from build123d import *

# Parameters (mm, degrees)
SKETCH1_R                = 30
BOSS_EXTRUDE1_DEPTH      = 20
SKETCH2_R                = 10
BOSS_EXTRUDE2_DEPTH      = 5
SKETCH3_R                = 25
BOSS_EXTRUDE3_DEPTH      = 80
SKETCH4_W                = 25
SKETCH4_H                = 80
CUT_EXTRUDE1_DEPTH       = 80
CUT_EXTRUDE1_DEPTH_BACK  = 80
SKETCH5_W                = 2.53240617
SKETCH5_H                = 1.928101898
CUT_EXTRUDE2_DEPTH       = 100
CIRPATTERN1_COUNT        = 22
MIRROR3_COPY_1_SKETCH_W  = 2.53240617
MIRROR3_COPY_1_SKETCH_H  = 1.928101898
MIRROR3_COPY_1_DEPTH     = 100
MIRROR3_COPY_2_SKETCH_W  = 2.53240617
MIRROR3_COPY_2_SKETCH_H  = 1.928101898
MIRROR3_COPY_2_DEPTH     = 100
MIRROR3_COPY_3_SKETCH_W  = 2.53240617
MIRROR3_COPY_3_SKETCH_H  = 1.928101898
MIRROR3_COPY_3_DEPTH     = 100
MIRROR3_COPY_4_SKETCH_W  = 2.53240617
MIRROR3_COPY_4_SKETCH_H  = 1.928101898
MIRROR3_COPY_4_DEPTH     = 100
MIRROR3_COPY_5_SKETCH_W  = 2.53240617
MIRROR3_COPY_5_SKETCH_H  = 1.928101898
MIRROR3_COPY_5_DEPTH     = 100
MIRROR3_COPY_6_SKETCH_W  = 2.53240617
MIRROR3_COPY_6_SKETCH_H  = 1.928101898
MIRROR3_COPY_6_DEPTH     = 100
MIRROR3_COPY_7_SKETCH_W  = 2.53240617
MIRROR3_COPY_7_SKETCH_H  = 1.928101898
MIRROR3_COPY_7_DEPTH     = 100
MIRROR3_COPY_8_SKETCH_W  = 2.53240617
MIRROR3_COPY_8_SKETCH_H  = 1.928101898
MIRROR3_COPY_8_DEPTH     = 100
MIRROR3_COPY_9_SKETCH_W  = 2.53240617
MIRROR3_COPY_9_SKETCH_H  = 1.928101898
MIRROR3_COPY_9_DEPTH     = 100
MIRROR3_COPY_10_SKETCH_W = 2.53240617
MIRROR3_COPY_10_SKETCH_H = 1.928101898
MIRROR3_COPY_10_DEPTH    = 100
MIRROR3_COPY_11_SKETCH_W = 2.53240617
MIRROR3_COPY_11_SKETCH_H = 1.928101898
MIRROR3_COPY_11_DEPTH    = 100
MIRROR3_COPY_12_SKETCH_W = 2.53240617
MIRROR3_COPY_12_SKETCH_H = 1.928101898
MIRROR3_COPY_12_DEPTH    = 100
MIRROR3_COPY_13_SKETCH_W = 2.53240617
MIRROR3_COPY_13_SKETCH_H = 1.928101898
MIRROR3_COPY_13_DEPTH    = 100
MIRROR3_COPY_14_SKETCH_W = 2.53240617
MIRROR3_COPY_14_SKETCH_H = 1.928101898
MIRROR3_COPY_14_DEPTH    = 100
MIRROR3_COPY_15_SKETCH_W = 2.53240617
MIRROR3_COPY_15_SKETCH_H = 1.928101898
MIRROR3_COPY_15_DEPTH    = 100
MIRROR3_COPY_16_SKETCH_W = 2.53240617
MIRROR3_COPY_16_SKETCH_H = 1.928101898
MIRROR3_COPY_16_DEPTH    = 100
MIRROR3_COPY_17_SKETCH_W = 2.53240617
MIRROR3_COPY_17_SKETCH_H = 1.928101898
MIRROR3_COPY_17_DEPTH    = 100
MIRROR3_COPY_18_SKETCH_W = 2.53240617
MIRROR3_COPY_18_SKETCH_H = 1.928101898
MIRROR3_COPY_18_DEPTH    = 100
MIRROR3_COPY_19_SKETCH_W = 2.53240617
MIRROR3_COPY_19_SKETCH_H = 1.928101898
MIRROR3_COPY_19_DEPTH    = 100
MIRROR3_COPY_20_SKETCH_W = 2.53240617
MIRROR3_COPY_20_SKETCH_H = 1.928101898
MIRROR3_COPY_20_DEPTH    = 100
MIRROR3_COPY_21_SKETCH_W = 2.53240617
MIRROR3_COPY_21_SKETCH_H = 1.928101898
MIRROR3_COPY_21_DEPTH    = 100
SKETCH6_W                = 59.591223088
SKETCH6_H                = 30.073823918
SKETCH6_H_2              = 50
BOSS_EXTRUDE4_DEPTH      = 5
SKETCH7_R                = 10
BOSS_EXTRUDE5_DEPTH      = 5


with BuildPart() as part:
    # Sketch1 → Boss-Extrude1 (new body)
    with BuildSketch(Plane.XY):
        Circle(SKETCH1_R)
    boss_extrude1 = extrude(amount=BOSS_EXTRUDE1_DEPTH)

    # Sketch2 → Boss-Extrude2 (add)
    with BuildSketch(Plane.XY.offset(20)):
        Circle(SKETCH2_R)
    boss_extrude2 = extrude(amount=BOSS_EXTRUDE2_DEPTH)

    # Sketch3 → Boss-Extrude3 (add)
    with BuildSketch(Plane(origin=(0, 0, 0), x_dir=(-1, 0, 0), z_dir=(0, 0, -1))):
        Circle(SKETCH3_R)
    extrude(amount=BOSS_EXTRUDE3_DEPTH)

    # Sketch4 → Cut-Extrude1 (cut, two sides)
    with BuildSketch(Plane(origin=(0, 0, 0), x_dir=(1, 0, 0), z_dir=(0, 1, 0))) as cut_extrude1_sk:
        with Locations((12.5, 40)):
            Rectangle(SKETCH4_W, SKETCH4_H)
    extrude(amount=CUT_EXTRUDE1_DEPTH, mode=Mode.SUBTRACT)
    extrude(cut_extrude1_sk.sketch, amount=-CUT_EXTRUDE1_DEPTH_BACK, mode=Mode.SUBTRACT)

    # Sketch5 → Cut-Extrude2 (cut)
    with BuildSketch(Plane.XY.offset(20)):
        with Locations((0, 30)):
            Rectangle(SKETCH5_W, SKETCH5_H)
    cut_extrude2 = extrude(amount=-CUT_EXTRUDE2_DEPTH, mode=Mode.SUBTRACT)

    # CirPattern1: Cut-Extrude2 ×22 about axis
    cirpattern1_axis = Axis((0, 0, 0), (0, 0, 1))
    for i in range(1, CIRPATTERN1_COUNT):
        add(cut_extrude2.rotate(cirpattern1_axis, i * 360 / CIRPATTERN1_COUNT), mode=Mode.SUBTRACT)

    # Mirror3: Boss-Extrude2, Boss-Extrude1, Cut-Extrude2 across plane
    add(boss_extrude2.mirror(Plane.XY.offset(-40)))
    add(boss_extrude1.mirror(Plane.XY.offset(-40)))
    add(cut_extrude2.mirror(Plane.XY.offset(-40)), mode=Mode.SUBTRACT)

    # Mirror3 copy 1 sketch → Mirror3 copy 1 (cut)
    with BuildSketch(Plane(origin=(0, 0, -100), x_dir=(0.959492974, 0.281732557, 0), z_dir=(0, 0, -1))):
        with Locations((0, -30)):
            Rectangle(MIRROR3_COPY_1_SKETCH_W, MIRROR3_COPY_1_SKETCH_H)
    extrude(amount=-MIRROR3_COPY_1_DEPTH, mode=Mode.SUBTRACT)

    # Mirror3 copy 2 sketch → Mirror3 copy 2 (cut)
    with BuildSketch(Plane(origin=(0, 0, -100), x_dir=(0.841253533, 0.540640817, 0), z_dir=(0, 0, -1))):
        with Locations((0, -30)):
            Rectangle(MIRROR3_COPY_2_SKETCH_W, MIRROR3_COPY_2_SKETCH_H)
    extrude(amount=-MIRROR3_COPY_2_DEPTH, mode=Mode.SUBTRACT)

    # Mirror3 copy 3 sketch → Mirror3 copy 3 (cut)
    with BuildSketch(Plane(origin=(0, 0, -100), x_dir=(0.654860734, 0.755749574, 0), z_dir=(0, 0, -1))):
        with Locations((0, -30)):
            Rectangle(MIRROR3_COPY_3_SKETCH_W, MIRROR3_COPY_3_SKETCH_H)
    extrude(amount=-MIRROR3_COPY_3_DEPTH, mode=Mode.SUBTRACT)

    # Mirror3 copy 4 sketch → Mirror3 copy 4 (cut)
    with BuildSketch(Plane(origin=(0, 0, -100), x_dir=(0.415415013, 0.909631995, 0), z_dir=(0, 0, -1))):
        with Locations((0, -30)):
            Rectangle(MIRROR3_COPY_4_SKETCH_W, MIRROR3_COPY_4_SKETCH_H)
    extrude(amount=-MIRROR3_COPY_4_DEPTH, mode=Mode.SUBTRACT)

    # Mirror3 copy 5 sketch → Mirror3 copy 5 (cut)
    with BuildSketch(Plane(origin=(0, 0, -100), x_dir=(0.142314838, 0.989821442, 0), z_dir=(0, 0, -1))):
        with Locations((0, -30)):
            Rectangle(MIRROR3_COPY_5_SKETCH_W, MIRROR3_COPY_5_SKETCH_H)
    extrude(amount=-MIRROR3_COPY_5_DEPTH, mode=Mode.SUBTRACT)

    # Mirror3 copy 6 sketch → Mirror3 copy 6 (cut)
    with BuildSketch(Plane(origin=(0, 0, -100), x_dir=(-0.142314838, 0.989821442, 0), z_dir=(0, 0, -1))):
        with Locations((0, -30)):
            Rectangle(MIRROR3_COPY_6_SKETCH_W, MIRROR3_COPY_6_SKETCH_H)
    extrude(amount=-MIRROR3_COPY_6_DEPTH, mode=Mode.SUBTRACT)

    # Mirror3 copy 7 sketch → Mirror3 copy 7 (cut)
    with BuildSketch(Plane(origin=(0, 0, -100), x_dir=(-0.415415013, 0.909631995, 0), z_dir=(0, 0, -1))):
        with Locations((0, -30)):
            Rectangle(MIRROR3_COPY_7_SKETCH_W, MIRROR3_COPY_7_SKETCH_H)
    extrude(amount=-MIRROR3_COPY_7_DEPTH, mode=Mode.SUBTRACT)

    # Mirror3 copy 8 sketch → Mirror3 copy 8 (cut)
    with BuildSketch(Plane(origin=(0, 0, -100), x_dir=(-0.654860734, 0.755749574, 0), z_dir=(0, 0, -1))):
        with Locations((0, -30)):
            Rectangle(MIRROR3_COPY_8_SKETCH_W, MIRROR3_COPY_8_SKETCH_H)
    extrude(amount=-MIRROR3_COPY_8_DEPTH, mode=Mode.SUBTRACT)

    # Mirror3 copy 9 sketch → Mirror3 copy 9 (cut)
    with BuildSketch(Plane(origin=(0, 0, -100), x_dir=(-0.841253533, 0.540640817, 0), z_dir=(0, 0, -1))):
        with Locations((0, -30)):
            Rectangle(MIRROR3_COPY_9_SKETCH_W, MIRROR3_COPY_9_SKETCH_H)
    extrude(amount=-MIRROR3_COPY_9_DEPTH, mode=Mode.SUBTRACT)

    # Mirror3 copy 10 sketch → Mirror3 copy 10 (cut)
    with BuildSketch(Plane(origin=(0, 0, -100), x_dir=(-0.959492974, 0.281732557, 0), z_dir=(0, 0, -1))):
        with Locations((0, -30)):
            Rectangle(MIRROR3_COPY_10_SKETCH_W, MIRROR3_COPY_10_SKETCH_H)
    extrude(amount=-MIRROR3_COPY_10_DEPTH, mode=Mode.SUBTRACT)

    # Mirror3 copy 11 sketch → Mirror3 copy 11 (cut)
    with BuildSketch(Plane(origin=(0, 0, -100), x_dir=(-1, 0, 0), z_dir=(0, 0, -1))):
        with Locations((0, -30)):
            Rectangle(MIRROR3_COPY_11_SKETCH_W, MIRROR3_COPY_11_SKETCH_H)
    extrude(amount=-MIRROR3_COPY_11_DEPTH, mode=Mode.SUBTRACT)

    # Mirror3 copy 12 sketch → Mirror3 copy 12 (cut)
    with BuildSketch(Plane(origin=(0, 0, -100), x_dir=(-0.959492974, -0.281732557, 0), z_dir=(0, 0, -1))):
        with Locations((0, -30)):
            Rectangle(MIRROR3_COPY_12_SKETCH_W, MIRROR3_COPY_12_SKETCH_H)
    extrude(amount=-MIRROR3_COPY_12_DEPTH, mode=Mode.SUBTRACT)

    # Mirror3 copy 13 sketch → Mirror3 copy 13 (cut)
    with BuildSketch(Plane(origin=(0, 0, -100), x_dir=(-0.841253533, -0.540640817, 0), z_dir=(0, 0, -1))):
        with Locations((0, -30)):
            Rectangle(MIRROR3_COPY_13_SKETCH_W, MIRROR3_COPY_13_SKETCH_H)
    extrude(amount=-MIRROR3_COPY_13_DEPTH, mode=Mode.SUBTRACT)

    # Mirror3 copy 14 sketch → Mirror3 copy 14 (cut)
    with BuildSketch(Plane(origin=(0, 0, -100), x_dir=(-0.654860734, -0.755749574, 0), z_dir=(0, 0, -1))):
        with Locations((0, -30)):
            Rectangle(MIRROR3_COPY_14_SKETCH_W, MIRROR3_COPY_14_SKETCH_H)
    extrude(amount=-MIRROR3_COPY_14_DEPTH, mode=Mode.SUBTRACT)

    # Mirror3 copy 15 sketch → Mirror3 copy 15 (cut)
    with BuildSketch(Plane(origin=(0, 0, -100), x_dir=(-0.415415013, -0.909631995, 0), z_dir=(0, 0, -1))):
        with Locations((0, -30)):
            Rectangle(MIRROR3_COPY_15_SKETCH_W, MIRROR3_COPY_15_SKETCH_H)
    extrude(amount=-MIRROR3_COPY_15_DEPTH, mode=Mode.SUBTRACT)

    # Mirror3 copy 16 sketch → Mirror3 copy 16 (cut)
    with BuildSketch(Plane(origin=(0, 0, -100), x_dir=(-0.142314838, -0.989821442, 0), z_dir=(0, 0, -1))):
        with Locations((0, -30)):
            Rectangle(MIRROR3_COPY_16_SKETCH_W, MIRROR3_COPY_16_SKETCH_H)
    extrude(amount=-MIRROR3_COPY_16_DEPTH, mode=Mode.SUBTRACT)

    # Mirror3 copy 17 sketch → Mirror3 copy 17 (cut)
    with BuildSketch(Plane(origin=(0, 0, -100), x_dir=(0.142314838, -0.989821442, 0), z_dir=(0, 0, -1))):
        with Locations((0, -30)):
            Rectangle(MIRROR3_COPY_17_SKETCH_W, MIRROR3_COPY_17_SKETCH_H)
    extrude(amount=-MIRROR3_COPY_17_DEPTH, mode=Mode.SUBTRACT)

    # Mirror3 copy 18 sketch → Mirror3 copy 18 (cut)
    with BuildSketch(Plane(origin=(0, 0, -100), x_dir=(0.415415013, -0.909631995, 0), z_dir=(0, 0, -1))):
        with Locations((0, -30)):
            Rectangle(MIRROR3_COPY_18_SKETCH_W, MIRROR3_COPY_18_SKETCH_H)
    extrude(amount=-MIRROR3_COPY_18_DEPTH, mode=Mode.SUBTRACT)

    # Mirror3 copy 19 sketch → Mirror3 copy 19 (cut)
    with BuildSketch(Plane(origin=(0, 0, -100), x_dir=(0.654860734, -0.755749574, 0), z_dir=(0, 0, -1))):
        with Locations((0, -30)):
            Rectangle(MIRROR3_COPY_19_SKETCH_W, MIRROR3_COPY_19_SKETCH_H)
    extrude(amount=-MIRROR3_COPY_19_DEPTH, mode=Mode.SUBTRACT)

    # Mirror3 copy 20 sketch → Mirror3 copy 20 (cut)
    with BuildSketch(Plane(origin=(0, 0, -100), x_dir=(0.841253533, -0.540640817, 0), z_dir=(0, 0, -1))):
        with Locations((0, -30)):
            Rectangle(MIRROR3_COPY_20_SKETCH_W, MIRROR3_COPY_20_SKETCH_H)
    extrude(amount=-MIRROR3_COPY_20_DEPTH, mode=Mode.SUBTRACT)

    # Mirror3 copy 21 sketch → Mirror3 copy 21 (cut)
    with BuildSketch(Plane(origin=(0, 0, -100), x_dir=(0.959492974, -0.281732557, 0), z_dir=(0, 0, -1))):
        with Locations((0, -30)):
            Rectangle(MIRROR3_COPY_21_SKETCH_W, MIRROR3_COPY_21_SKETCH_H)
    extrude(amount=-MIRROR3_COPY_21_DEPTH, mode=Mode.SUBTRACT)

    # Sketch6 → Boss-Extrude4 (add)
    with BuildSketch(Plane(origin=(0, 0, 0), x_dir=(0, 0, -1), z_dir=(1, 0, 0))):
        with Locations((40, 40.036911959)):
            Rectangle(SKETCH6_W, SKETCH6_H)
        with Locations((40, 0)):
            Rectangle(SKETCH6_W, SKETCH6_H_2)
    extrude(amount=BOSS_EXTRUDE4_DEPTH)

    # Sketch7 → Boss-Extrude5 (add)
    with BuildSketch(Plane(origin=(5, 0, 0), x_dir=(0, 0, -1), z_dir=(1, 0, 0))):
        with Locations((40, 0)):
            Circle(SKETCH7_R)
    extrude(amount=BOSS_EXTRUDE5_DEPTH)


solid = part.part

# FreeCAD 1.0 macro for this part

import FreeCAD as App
import Part
import Sketcher
from FreeCAD import Vector
Q = App.Units.Quantity

doc = App.newDocument("Part")
body = doc.addObject("PartDesign::Body", "Body")

# Sketch on XY plane
sketch1 = body.newObject("Sketcher::SketchObject", "Sketch")
sketch1.AttachmentSupport = (doc.getObject("XY_Plane"), [""])
sketch1.MapMode = "FlatFace"
sketch1.addGeometry(Part.Circle(Vector(0, 0, 0), Vector(0, 0, 1), 30), False)
sketch1.addConstraint([
    Sketcher.Constraint("Coincident", 0, 3, -1, 1),
    Sketcher.Constraint("Diameter", 0, Q("60 mm")),
])
pad1 = body.newObject("PartDesign::Pad", "Pad")
pad1.Profile = sketch1
pad1.Length = 20

# Sketch on XY plane
sketch2 = body.newObject("Sketcher::SketchObject", "Sketch001")
sketch2.AttachmentSupport = (doc.getObject("XY_Plane"), [""])
sketch2.MapMode = "FlatFace"
sketch2.AttachmentOffset = App.Placement(Vector(0, 0, 20), App.Rotation())
sketch2.addGeometry(Part.Circle(Vector(0, 0, 0), Vector(0, 0, 1), 10), False)
sketch2.addConstraint([
    Sketcher.Constraint("Coincident", 0, 3, -1, 1),
    Sketcher.Constraint("Diameter", 0, Q("20 mm")),
])
pad2 = body.newObject("PartDesign::Pad", "Pad001")
pad2.Profile = sketch2
pad2.Length = 5

# Sketch on XY plane
sketch3 = body.newObject("Sketcher::SketchObject", "Sketch002")
sketch3.AttachmentSupport = (doc.getObject("XY_Plane"), [""])
sketch3.MapMode = "FlatFace"
sketch3.addGeometry(Part.Circle(Vector(0, 0, 0), Vector(0, 0, 1), 25), False)
sketch3.addConstraint([
    Sketcher.Constraint("Coincident", 0, 3, -1, 1),
    Sketcher.Constraint("Diameter", 0, Q("50 mm")),
])
pad3 = body.newObject("PartDesign::Pad", "Pad002")
pad3.Profile = sketch3
pad3.Length = 80
pad3.Reversed = True

# Sketch on XZ plane
sketch4 = body.newObject("Sketcher::SketchObject", "Sketch003")
sketch4.AttachmentSupport = (doc.getObject("XZ_Plane"), [""])
sketch4.MapMode = "FlatFace"
sketch4.addGeometry([
    Part.LineSegment(Vector(0, -80, 0), Vector(0, 0, 0)),
    Part.LineSegment(Vector(0, 0, 0), Vector(25, 0, 0)),
    Part.LineSegment(Vector(25, 0, 0), Vector(25, -80, 0)),
    Part.LineSegment(Vector(25, -80, 0), Vector(0, -80, 0)),
], False)
sketch4.addConstraint([
    Sketcher.Constraint("Coincident", 0, 2, 1, 1),
    Sketcher.Constraint("Coincident", 1, 2, 2, 1),
    Sketcher.Constraint("Coincident", 2, 2, 3, 1),
    Sketcher.Constraint("Coincident", 3, 2, 0, 1),
    Sketcher.Constraint("Vertical", 0),
    Sketcher.Constraint("Horizontal", 1),
    Sketcher.Constraint("Vertical", 2),
    Sketcher.Constraint("Horizontal", 3),
    Sketcher.Constraint("Coincident", 0, 2, -1, 1),
    Sketcher.Constraint("DistanceX", 1, 1, 1, 2, Q("25 mm")),
    Sketcher.Constraint("DistanceY", 0, 1, 0, 2, Q("80 mm")),
])
pocket1 = body.newObject("PartDesign::Pocket", "Pocket")
pocket1.Profile = sketch4
pocket1.Type = "ThroughAll"
pocket1.Midplane = True

# Sketch on XY plane
sketch5 = body.newObject("Sketcher::SketchObject", "Sketch004")
sketch5.AttachmentSupport = (doc.getObject("XY_Plane"), [""])
sketch5.MapMode = "FlatFace"
sketch5.AttachmentOffset = App.Placement(Vector(0, 0, 20), App.Rotation())
sketch5.addGeometry([
    Part.LineSegment(Vector(-1.266203, 30.964051, 0), Vector(-1.266203, 29.035949, 0)),
    Part.LineSegment(Vector(-1.266203, 29.035949, 0), Vector(1.266203, 29.035949, 0)),
    Part.LineSegment(Vector(1.266203, 29.035949, 0), Vector(1.266203, 30.964051, 0)),
    Part.LineSegment(Vector(1.266203, 30.964051, 0), Vector(-1.266203, 30.964051, 0)),
], False)
sketch5.addConstraint([
    Sketcher.Constraint("Coincident", 0, 2, 1, 1),
    Sketcher.Constraint("Coincident", 1, 2, 2, 1),
    Sketcher.Constraint("Coincident", 2, 2, 3, 1),
    Sketcher.Constraint("Coincident", 3, 2, 0, 1),
    Sketcher.Constraint("Vertical", 0),
    Sketcher.Constraint("Horizontal", 1),
    Sketcher.Constraint("Vertical", 2),
    Sketcher.Constraint("Horizontal", 3),
    Sketcher.Constraint("DistanceY", 0, 2, 0, 1, Q("1.928102 mm")),
    Sketcher.Constraint("DistanceX", 1, 1, 1, 2, Q("2.532406 mm")),
    Sketcher.Constraint("DistanceY", -1, 1, 0, 2, Q("29.035949 mm")),
    Sketcher.Constraint("DistanceX", 0, 2, -1, 1, Q("1.266203 mm")),
])
pocket2 = body.newObject("PartDesign::Pocket", "Pocket001")
pocket2.Profile = sketch5
pocket2.Length = 100
doc.recompute()

polarpattern = body.newObject("PartDesign::PolarPattern", "PolarPattern")
polarpattern.Originals = [pocket2]
polarpattern.Axis = (doc.getObject("Z_Axis"), [""])
polarpattern.Angle = 360
polarpattern.Occurrences = 22
body.Tip = polarpattern
doc.recompute()

datumplane = body.newObject("PartDesign::Plane", "DatumPlane")
datumplane.AttachmentSupport = (doc.getObject("XY_Plane"), [""])
datumplane.MapMode = "FlatFace"
datumplane.AttachmentOffset = App.Placement(Vector(0, 0, -40), App.Rotation())
mirrored = body.newObject("PartDesign::Mirrored", "Mirrored")
mirrored.Originals = [pad2, pad1, pocket2]
mirrored.MirrorPlane = (datumplane, [""])
body.Tip = mirrored

# Sketch on XY plane
sketch6 = body.newObject("Sketcher::SketchObject", "Sketch005")
sketch6.AttachmentSupport = (doc.getObject("XY_Plane"), [""])
sketch6.MapMode = "FlatFace"
sketch6.AttachmentOffset = App.Placement(Vector(0, 0, -100), App.Rotation())
sketch6.addGeometry([
    Part.LineSegment(Vector(-9.395285, 27.503058, 0), Vector(-9.938494, 29.353059, 0)),
    Part.LineSegment(Vector(-9.938494, 29.353059, 0), Vector(-7.508668, 30.06652, 0)),
    Part.LineSegment(Vector(-7.508668, 30.06652, 0), Vector(-6.965459, 28.21652, 0)),
    Part.LineSegment(Vector(-6.965459, 28.21652, 0), Vector(-9.395285, 27.503058, 0)),
], False)
sketch6.addConstraint([
    Sketcher.Constraint("Coincident", 0, 2, 1, 1),
    Sketcher.Constraint("Coincident", 1, 2, 2, 1),
    Sketcher.Constraint("Coincident", 2, 2, 3, 1),
    Sketcher.Constraint("Coincident", 3, 2, 0, 1),
    Sketcher.Constraint("Perpendicular", 0, 1),
    Sketcher.Constraint("Perpendicular", 1, 2),
    Sketcher.Constraint("Perpendicular", 2, 3),
    Sketcher.Constraint("DistanceY", 2, 2, 1, 2, Q("1.85 mm")),
    Sketcher.Constraint("Distance", 0, Q("1.928102 mm")),
    Sketcher.Constraint("DistanceY", -1, 1, 0, 2, Q("29.353059 mm")),
    Sketcher.Constraint("DistanceX", 1, 2, -1, 1, Q("7.508668 mm")),
    Sketcher.Constraint("DistanceY", -1, 1, 1, 2, Q("30.06652 mm")),
])
pocket3 = body.newObject("PartDesign::Pocket", "Pocket002")
pocket3.Profile = sketch6
pocket3.Length = 100
pocket3.Reversed = True

# Sketch on XY plane
sketch7 = body.newObject("Sketcher::SketchObject", "Sketch006")
sketch7.AttachmentSupport = (doc.getObject("XY_Plane"), [""])
sketch7.MapMode = "FlatFace"
sketch7.AttachmentOffset = App.Placement(Vector(0, 0, -100), App.Rotation())
sketch7.addGeometry([
    Part.LineSegment(Vector(-16.763217, 23.742034, 0), Vector(-17.805628, 25.364056, 0)),
    Part.LineSegment(Vector(-17.805628, 25.364056, 0), Vector(-15.675232, 26.733178, 0)),
    Part.LineSegment(Vector(-15.675232, 26.733178, 0), Vector(-14.632821, 25.111156, 0)),
    Part.LineSegment(Vector(-14.632821, 25.111156, 0), Vector(-16.763217, 23.742034, 0)),
], False)
sketch7.addConstraint([
    Sketcher.Constraint("Coincident", 0, 2, 1, 1),
    Sketcher.Constraint("Coincident", 1, 2, 2, 1),
    Sketcher.Constraint("Coincident", 2, 2, 3, 1),
    Sketcher.Constraint("Coincident", 3, 2, 0, 1),
    Sketcher.Constraint("Perpendicular", 0, 1),
    Sketcher.Constraint("Perpendicular", 1, 2),
    Sketcher.Constraint("Perpendicular", 2, 3),
    Sketcher.Constraint("Distance", 0, Q("1.928102 mm")),
    Sketcher.Constraint("DistanceY", 2, 2, 0, 2, Q("0.2529 mm")),
    Sketcher.Constraint("DistanceX", 1, 2, -1, 1, Q("15.675232 mm")),
    Sketcher.Constraint("DistanceY", -1, 1, 1, 2, Q("26.733178 mm")),
    Sketcher.Constraint("DistanceX", 2, 2, -1, 1, Q("14.632821 mm")),
])
pocket4 = body.newObject("PartDesign::Pocket", "Pocket003")
pocket4.Profile = sketch7
pocket4.Length = 100
pocket4.Reversed = True

# Sketch on XY plane
sketch8 = body.newObject("Sketcher::SketchObject", "Sketch007")
sketch8.AttachmentSupport = (doc.getObject("XY_Plane"), [""])
sketch8.MapMode = "FlatFace"
sketch8.AttachmentOffset = App.Placement(Vector(0, 0, -100), App.Rotation())
sketch8.addGeometry([
    Part.LineSegment(Vector(-22.773093, 18.05757, 0), Vector(-24.230255, 19.320209, 0)),
    Part.LineSegment(Vector(-24.230255, 19.320209, 0), Vector(-22.571882, 21.234074, 0)),
    Part.LineSegment(Vector(-22.571882, 21.234074, 0), Vector(-21.114719, 19.971435, 0)),
    Part.LineSegment(Vector(-21.114719, 19.971435, 0), Vector(-22.773093, 18.05757, 0)),
], False)
sketch8.addConstraint([
    Sketcher.Constraint("Coincident", 0, 2, 1, 1),
    Sketcher.Constraint("Coincident", 1, 2, 2, 1),
    Sketcher.Constraint("Coincident", 2, 2, 3, 1),
    Sketcher.Constraint("Coincident", 3, 2, 0, 1),
    Sketcher.Constraint("Perpendicular", 0, 1),
    Sketcher.Constraint("Perpendicular", 1, 2),
    Sketcher.Constraint("Perpendicular", 2, 3),
    Sketcher.Constraint("Distance", 0, Q("1.928102 mm")),
    Sketcher.Constraint("DistanceY", -1, 1, 0, 2, Q("19.320209 mm")),
    Sketcher.Constraint("DistanceX", 1, 2, -1, 1, Q("22.571882 mm")),
    Sketcher.Constraint("DistanceX", 2, 2, -1, 1, Q("21.114719 mm")),
    Sketcher.Constraint("DistanceX", 3, 2, 1, 2, Q("0.201211 mm")),
])
pocket5 = body.newObject("PartDesign::Pocket", "Pocket004")
pocket5.Profile = sketch8
pocket5.Length = 100
pocket5.Reversed = True

# Sketch on XY plane
sketch9 = body.newObject("Sketcher::SketchObject", "Sketch008")
sketch9.AttachmentSupport = (doc.getObject("XY_Plane"), [""])
sketch9.MapMode = "FlatFace"
sketch9.AttachmentOffset = App.Placement(Vector(0, 0, -100), App.Rotation())
sketch9.addGeometry([
    Part.LineSegment(Vector(-26.938028, 10.91019, 0), Vector(-28.691891, 11.711153, 0)),
    Part.LineSegment(Vector(-28.691891, 11.711153, 0), Vector(-27.639892, 14.01471, 0)),
    Part.LineSegment(Vector(-27.639892, 14.01471, 0), Vector(-25.886028, 13.213748, 0)),
    Part.LineSegment(Vector(-25.886028, 13.213748, 0), Vector(-26.938028, 10.91019, 0)),
], False)
sketch9.addConstraint([
    Sketcher.Constraint("Coincident", 0, 2, 1, 1),
    Sketcher.Constraint("Coincident", 1, 2, 2, 1),
    Sketcher.Constraint("Coincident", 2, 2, 3, 1),
    Sketcher.Constraint("Coincident", 3, 2, 0, 1),
    Sketcher.Constraint("Perpendicular", 0, 1),
    Sketcher.Constraint("Perpendicular", 1, 2),
    Sketcher.Constraint("Perpendicular", 2, 3),
    Sketcher.Constraint("DistanceX", 0, 2, 1, 2, Q("1.052 mm")),
    Sketcher.Constraint("Distance", 0, Q("1.928102 mm")),
    Sketcher.Constraint("DistanceX", 0, 2, -1, 1, Q("28.691891 mm")),
    Sketcher.Constraint("DistanceY", -1, 1, 1, 2, Q("14.01471 mm")),
    Sketcher.Constraint("DistanceX", 2, 2, -1, 1, Q("25.886028 mm")),
])
pocket6 = body.newObject("PartDesign::Pocket", "Pocket005")
pocket6.Profile = sketch9
pocket6.Length = 100
pocket6.Reversed = True

# Sketch on XY plane
sketch10 = body.newObject("Sketcher::SketchObject", "Sketch009")
sketch10.AttachmentSupport = (doc.getObject("XY_Plane"), [""])
sketch10.MapMode = "FlatFace"
sketch10.AttachmentOffset = App.Placement(Vector(0, 0, -100), App.Rotation())
sketch10.addGeometry([
    Part.LineSegment(Vector(-28.920604, 2.878931, 0), Vector(-30.829081, 3.153329, 0)),
    Part.LineSegment(Vector(-30.829081, 3.153329, 0), Vector(-30.468682, 5.659959, 0)),
    Part.LineSegment(Vector(-30.468682, 5.659959, 0), Vector(-28.560205, 5.385561, 0)),
    Part.LineSegment(Vector(-28.560205, 5.385561, 0), Vector(-28.920604, 2.878931, 0)),
], False)
sketch10.addConstraint([
    Sketcher.Constraint("Coincident", 0, 2, 1, 1),
    Sketcher.Constraint("Coincident", 1, 2, 2, 1),
    Sketcher.Constraint("Coincident", 2, 2, 3, 1),
    Sketcher.Constraint("Coincident", 3, 2, 0, 1),
    Sketcher.Constraint("Perpendicular", 0, 1),
    Sketcher.Constraint("Perpendicular", 1, 2),
    Sketcher.Constraint("Perpendicular", 2, 3),
    Sketcher.Constraint("Distance", 0, Q("1.928102 mm")),
    Sketcher.Constraint("DistanceX", 0, 2, 1, 2, Q("0.360399 mm")),
    Sketcher.Constraint("DistanceX", 0, 2, -1, 1, Q("30.829081 mm")),
    Sketcher.Constraint("DistanceY", -1, 1, 0, 2, Q("3.153329 mm")),
    Sketcher.Constraint("DistanceY", -1, 1, 1, 2, Q("5.659959 mm")),
])
pocket7 = body.newObject("PartDesign::Pocket", "Pocket006")
pocket7.Profile = sketch10
pocket7.Length = 100
pocket7.Reversed = True

# Sketch on XY plane
sketch11 = body.newObject("Sketcher::SketchObject", "Sketch010")
sketch11.AttachmentSupport = (doc.getObject("XY_Plane"), [""])
sketch11.MapMode = "FlatFace"
sketch11.AttachmentOffset = App.Placement(Vector(0, 0, -100), App.Rotation())
sketch11.addGeometry([
    Part.LineSegment(Vector(-28.560205, -5.385561, 0), Vector(-30.468682, -5.659959, 0)),
    Part.LineSegment(Vector(-30.468682, -5.659959, 0), Vector(-30.829081, -3.153329, 0)),
    Part.LineSegment(Vector(-30.829081, -3.153329, 0), Vector(-28.920604, -2.878931, 0)),
    Part.LineSegment(Vector(-28.920604, -2.878931, 0), Vector(-28.560205, -5.385561, 0)),
], False)
sketch11.addConstraint([
    Sketcher.Constraint("Coincident", 0, 2, 1, 1),
    Sketcher.Constraint("Coincident", 1, 2, 2, 1),
    Sketcher.Constraint("Coincident", 2, 2, 3, 1),
    Sketcher.Constraint("Coincident", 3, 2, 0, 1),
    Sketcher.Constraint("Perpendicular", 0, 1),
    Sketcher.Constraint("Perpendicular", 1, 2),
    Sketcher.Constraint("Perpendicular", 2, 3),
    Sketcher.Constraint("Distance", 0, Q("1.928102 mm")),
    Sketcher.Constraint("DistanceX", 1, 2, 0, 2, Q("0.360399 mm")),
    Sketcher.Constraint("DistanceY", 0, 2, -1, 1, Q("5.659959 mm")),
    Sketcher.Constraint("DistanceX", 1, 2, -1, 1, Q("30.829081 mm")),
    Sketcher.Constraint("DistanceY", 1, 2, -1, 1, Q("3.153329 mm")),
])
pocket8 = body.newObject("PartDesign::Pocket", "Pocket007")
pocket8.Profile = sketch11
pocket8.Length = 100
pocket8.Reversed = True

# Sketch on XY plane
sketch12 = body.newObject("Sketcher::SketchObject", "Sketch011")
sketch12.AttachmentSupport = (doc.getObject("XY_Plane"), [""])
sketch12.MapMode = "FlatFace"
sketch12.AttachmentOffset = App.Placement(Vector(0, 0, -100), App.Rotation())
sketch12.addGeometry([
    Part.LineSegment(Vector(-25.886028, -13.213748, 0), Vector(-27.639892, -14.01471, 0)),
    Part.LineSegment(Vector(-27.639892, -14.01471, 0), Vector(-28.691891, -11.711153, 0)),
    Part.LineSegment(Vector(-28.691891, -11.711153, 0), Vector(-26.938028, -10.91019, 0)),
    Part.LineSegment(Vector(-26.938028, -10.91019, 0), Vector(-25.886028, -13.213748, 0)),
], False)
sketch12.addConstraint([
    Sketcher.Constraint("Coincident", 0, 2, 1, 1),
    Sketcher.Constraint("Coincident", 1, 2, 2, 1),
    Sketcher.Constraint("Coincident", 2, 2, 3, 1),
    Sketcher.Constraint("Coincident", 3, 2, 0, 1),
    Sketcher.Constraint("Perpendicular", 0, 1),
    Sketcher.Constraint("Perpendicular", 1, 2),
    Sketcher.Constraint("Perpendicular", 2, 3),
    Sketcher.Constraint("DistanceX", 1, 2, 0, 2, Q("1.052 mm")),
    Sketcher.Constraint("Distance", 0, Q("1.928102 mm")),
    Sketcher.Constraint("DistanceX", 0, 2, -1, 1, Q("27.639892 mm")),
    Sketcher.Constraint("DistanceY", 0, 2, -1, 1, Q("14.01471 mm")),
    Sketcher.Constraint("DistanceX", 2, 2, -1, 1, Q("26.938028 mm")),
])
pocket9 = body.newObject("PartDesign::Pocket", "Pocket008")
pocket9.Profile = sketch12
pocket9.Length = 100
pocket9.Reversed = True

# Sketch on XY plane
sketch13 = body.newObject("Sketcher::SketchObject", "Sketch012")
sketch13.AttachmentSupport = (doc.getObject("XY_Plane"), [""])
sketch13.MapMode = "FlatFace"
sketch13.AttachmentOffset = App.Placement(Vector(0, 0, -100), App.Rotation())
sketch13.addGeometry([
    Part.LineSegment(Vector(-21.114719, -19.971435, 0), Vector(-22.571882, -21.234074, 0)),
    Part.LineSegment(Vector(-22.571882, -21.234074, 0), Vector(-24.230255, -19.320209, 0)),
    Part.LineSegment(Vector(-24.230255, -19.320209, 0), Vector(-22.773093, -18.05757, 0)),
    Part.LineSegment(Vector(-22.773093, -18.05757, 0), Vector(-21.114719, -19.971435, 0)),
], False)
sketch13.addConstraint([
    Sketcher.Constraint("Coincident", 0, 2, 1, 1),
    Sketcher.Constraint("Coincident", 1, 2, 2, 1),
    Sketcher.Constraint("Coincident", 2, 2, 3, 1),
    Sketcher.Constraint("Coincident", 3, 2, 0, 1),
    Sketcher.Constraint("Perpendicular", 0, 1),
    Sketcher.Constraint("Perpendicular", 1, 2),
    Sketcher.Constraint("Perpendicular", 2, 3),
    Sketcher.Constraint("Distance", 0, Q("1.928102 mm")),
    Sketcher.Constraint("DistanceX", 0, 2, -1, 1, Q("22.571882 mm")),
    Sketcher.Constraint("DistanceY", 1, 2, -1, 1, Q("19.320209 mm")),
    Sketcher.Constraint("DistanceY", 2, 2, -1, 1, Q("18.05757 mm")),
    Sketcher.Constraint("DistanceX", 2, 2, 0, 2, Q("0.201211 mm")),
])
pocket10 = body.newObject("PartDesign::Pocket", "Pocket009")
pocket10.Profile = sketch13
pocket10.Length = 100
pocket10.Reversed = True

# Sketch on XY plane
sketch14 = body.newObject("Sketcher::SketchObject", "Sketch013")
sketch14.AttachmentSupport = (doc.getObject("XY_Plane"), [""])
sketch14.MapMode = "FlatFace"
sketch14.AttachmentOffset = App.Placement(Vector(0, 0, -100), App.Rotation())
sketch14.addGeometry([
    Part.LineSegment(Vector(-14.632821, -25.111156, 0), Vector(-15.675232, -26.733178, 0)),
    Part.LineSegment(Vector(-15.675232, -26.733178, 0), Vector(-17.805628, -25.364056, 0)),
    Part.LineSegment(Vector(-17.805628, -25.364056, 0), Vector(-16.763217, -23.742034, 0)),
    Part.LineSegment(Vector(-16.763217, -23.742034, 0), Vector(-14.632821, -25.111156, 0)),
], False)
sketch14.addConstraint([
    Sketcher.Constraint("Coincident", 0, 2, 1, 1),
    Sketcher.Constraint("Coincident", 1, 2, 2, 1),
    Sketcher.Constraint("Coincident", 2, 2, 3, 1),
    Sketcher.Constraint("Coincident", 3, 2, 0, 1),
    Sketcher.Constraint("Perpendicular", 0, 1),
    Sketcher.Constraint("Perpendicular", 1, 2),
    Sketcher.Constraint("Perpendicular", 2, 3),
    Sketcher.Constraint("Distance", 0, Q("1.928102 mm")),
    Sketcher.Constraint("DistanceY", 1, 2, 3, 2, Q("0.2529 mm")),
    Sketcher.Constraint("DistanceX", 0, 2, -1, 1, Q("15.675232 mm")),
    Sketcher.Constraint("DistanceY", 0, 2, -1, 1, Q("26.733178 mm")),
    Sketcher.Constraint("DistanceX", 3, 2, -1, 1, Q("14.632821 mm")),
])
pocket11 = body.newObject("PartDesign::Pocket", "Pocket010")
pocket11.Profile = sketch14
pocket11.Length = 100
pocket11.Reversed = True

# Sketch on XY plane
sketch15 = body.newObject("Sketcher::SketchObject", "Sketch014")
sketch15.AttachmentSupport = (doc.getObject("XY_Plane"), [""])
sketch15.MapMode = "FlatFace"
sketch15.AttachmentOffset = App.Placement(Vector(0, 0, -100), App.Rotation())
sketch15.addGeometry([
    Part.LineSegment(Vector(-6.965459, -28.21652, 0), Vector(-7.508668, -30.06652, 0)),
    Part.LineSegment(Vector(-7.508668, -30.06652, 0), Vector(-9.938494, -29.353059, 0)),
    Part.LineSegment(Vector(-9.938494, -29.353059, 0), Vector(-9.395285, -27.503058, 0)),
    Part.LineSegment(Vector(-9.395285, -27.503058, 0), Vector(-6.965459, -28.21652, 0)),
], False)
sketch15.addConstraint([
    Sketcher.Constraint("Coincident", 0, 2, 1, 1),
    Sketcher.Constraint("Coincident", 1, 2, 2, 1),
    Sketcher.Constraint("Coincident", 2, 2, 3, 1),
    Sketcher.Constraint("Coincident", 3, 2, 0, 1),
    Sketcher.Constraint("Perpendicular", 0, 1),
    Sketcher.Constraint("Perpendicular", 1, 2),
    Sketcher.Constraint("Perpendicular", 2, 3),
    Sketcher.Constraint("DistanceY", 1, 2, 2, 2, Q("1.85 mm")),
    Sketcher.Constraint("Distance", 0, Q("1.928102 mm")),
    Sketcher.Constraint("DistanceX", 0, 2, -1, 1, Q("7.508668 mm")),
    Sketcher.Constraint("DistanceY", 0, 2, -1, 1, Q("30.06652 mm")),
    Sketcher.Constraint("DistanceY", 1, 2, -1, 1, Q("29.353059 mm")),
])
pocket12 = body.newObject("PartDesign::Pocket", "Pocket011")
pocket12.Profile = sketch15
pocket12.Length = 100
pocket12.Reversed = True

# Sketch on XY plane
sketch16 = body.newObject("Sketcher::SketchObject", "Sketch015")
sketch16.AttachmentSupport = (doc.getObject("XY_Plane"), [""])
sketch16.MapMode = "FlatFace"
sketch16.AttachmentOffset = App.Placement(Vector(0, 0, -100), App.Rotation())
sketch16.addGeometry([
    Part.LineSegment(Vector(1.266203, -29.035949, 0), Vector(1.266203, -30.964051, 0)),
    Part.LineSegment(Vector(1.266203, -30.964051, 0), Vector(-1.266203, -30.964051, 0)),
    Part.LineSegment(Vector(-1.266203, -30.964051, 0), Vector(-1.266203, -29.035949, 0)),
    Part.LineSegment(Vector(-1.266203, -29.035949, 0), Vector(1.266203, -29.035949, 0)),
], False)
sketch16.addConstraint([
    Sketcher.Constraint("Coincident", 0, 2, 1, 1),
    Sketcher.Constraint("Coincident", 1, 2, 2, 1),
    Sketcher.Constraint("Coincident", 2, 2, 3, 1),
    Sketcher.Constraint("Coincident", 3, 2, 0, 1),
    Sketcher.Constraint("Vertical", 0),
    Sketcher.Constraint("Horizontal", 1),
    Sketcher.Constraint("Vertical", 2),
    Sketcher.Constraint("Horizontal", 3),
    Sketcher.Constraint("DistanceY", 0, 2, 0, 1, Q("1.928102 mm")),
    Sketcher.Constraint("DistanceX", 1, 2, 1, 1, Q("2.532406 mm")),
    Sketcher.Constraint("DistanceY", 0, 2, -1, 1, Q("30.964051 mm")),
    Sketcher.Constraint("DistanceX", -1, 1, 0, 2, Q("1.266203 mm")),
])
pocket13 = body.newObject("PartDesign::Pocket", "Pocket012")
pocket13.Profile = sketch16
pocket13.Length = 100
pocket13.Reversed = True

# Sketch on XY plane
sketch17 = body.newObject("Sketcher::SketchObject", "Sketch016")
sketch17.AttachmentSupport = (doc.getObject("XY_Plane"), [""])
sketch17.MapMode = "FlatFace"
sketch17.AttachmentOffset = App.Placement(Vector(0, 0, -100), App.Rotation())
sketch17.addGeometry([
    Part.LineSegment(Vector(9.395285, -27.503058, 0), Vector(9.938494, -29.353059, 0)),
    Part.LineSegment(Vector(9.938494, -29.353059, 0), Vector(7.508668, -30.06652, 0)),
    Part.LineSegment(Vector(7.508668, -30.06652, 0), Vector(6.965459, -28.21652, 0)),
    Part.LineSegment(Vector(6.965459, -28.21652, 0), Vector(9.395285, -27.503058, 0)),
], False)
sketch17.addConstraint([
    Sketcher.Constraint("Coincident", 0, 2, 1, 1),
    Sketcher.Constraint("Coincident", 1, 2, 2, 1),
    Sketcher.Constraint("Coincident", 2, 2, 3, 1),
    Sketcher.Constraint("Coincident", 3, 2, 0, 1),
    Sketcher.Constraint("Perpendicular", 0, 1),
    Sketcher.Constraint("Perpendicular", 1, 2),
    Sketcher.Constraint("Perpendicular", 2, 3),
    Sketcher.Constraint("DistanceY", 1, 2, 2, 2, Q("1.85 mm")),
    Sketcher.Constraint("Distance", 0, Q("1.928102 mm")),
    Sketcher.Constraint("DistanceY", 0, 2, -1, 1, Q("29.353059 mm")),
    Sketcher.Constraint("DistanceX", -1, 1, 1, 2, Q("7.508668 mm")),
    Sketcher.Constraint("DistanceY", 1, 2, -1, 1, Q("30.06652 mm")),
])
pocket14 = body.newObject("PartDesign::Pocket", "Pocket013")
pocket14.Profile = sketch17
pocket14.Length = 100
pocket14.Reversed = True

# Sketch on XY plane
sketch18 = body.newObject("Sketcher::SketchObject", "Sketch017")
sketch18.AttachmentSupport = (doc.getObject("XY_Plane"), [""])
sketch18.MapMode = "FlatFace"
sketch18.AttachmentOffset = App.Placement(Vector(0, 0, -100), App.Rotation())
sketch18.addGeometry([
    Part.LineSegment(Vector(16.763217, -23.742034, 0), Vector(17.805628, -25.364056, 0)),
    Part.LineSegment(Vector(17.805628, -25.364056, 0), Vector(15.675232, -26.733178, 0)),
    Part.LineSegment(Vector(15.675232, -26.733178, 0), Vector(14.632821, -25.111156, 0)),
    Part.LineSegment(Vector(14.632821, -25.111156, 0), Vector(16.763217, -23.742034, 0)),
], False)
sketch18.addConstraint([
    Sketcher.Constraint("Coincident", 0, 2, 1, 1),
    Sketcher.Constraint("Coincident", 1, 2, 2, 1),
    Sketcher.Constraint("Coincident", 2, 2, 3, 1),
    Sketcher.Constraint("Coincident", 3, 2, 0, 1),
    Sketcher.Constraint("Perpendicular", 0, 1),
    Sketcher.Constraint("Perpendicular", 1, 2),
    Sketcher.Constraint("Perpendicular", 2, 3),
    Sketcher.Constraint("Distance", 0, Q("1.928102 mm")),
    Sketcher.Constraint("DistanceY", 0, 2, 2, 2, Q("0.2529 mm")),
    Sketcher.Constraint("DistanceX", -1, 1, 1, 2, Q("15.675232 mm")),
    Sketcher.Constraint("DistanceY", 1, 2, -1, 1, Q("26.733178 mm")),
    Sketcher.Constraint("DistanceX", -1, 1, 2, 2, Q("14.632821 mm")),
])
pocket15 = body.newObject("PartDesign::Pocket", "Pocket014")
pocket15.Profile = sketch18
pocket15.Length = 100
pocket15.Reversed = True

# Sketch on XY plane
sketch19 = body.newObject("Sketcher::SketchObject", "Sketch018")
sketch19.AttachmentSupport = (doc.getObject("XY_Plane"), [""])
sketch19.MapMode = "FlatFace"
sketch19.AttachmentOffset = App.Placement(Vector(0, 0, -100), App.Rotation())
sketch19.addGeometry([
    Part.LineSegment(Vector(22.773093, -18.05757, 0), Vector(24.230255, -19.320209, 0)),
    Part.LineSegment(Vector(24.230255, -19.320209, 0), Vector(22.571882, -21.234074, 0)),
    Part.LineSegment(Vector(22.571882, -21.234074, 0), Vector(21.114719, -19.971435, 0)),
    Part.LineSegment(Vector(21.114719, -19.971435, 0), Vector(22.773093, -18.05757, 0)),
], False)
sketch19.addConstraint([
    Sketcher.Constraint("Coincident", 0, 2, 1, 1),
    Sketcher.Constraint("Coincident", 1, 2, 2, 1),
    Sketcher.Constraint("Coincident", 2, 2, 3, 1),
    Sketcher.Constraint("Coincident", 3, 2, 0, 1),
    Sketcher.Constraint("Perpendicular", 0, 1),
    Sketcher.Constraint("Perpendicular", 1, 2),
    Sketcher.Constraint("Perpendicular", 2, 3),
    Sketcher.Constraint("Distance", 0, Q("1.928102 mm")),
    Sketcher.Constraint("DistanceY", 0, 2, -1, 1, Q("19.320209 mm")),
    Sketcher.Constraint("DistanceX", -1, 1, 1, 2, Q("22.571882 mm")),
    Sketcher.Constraint("DistanceX", -1, 1, 2, 2, Q("21.114719 mm")),
    Sketcher.Constraint("DistanceX", 1, 2, 3, 2, Q("0.201211 mm")),
])
pocket16 = body.newObject("PartDesign::Pocket", "Pocket015")
pocket16.Profile = sketch19
pocket16.Length = 100
pocket16.Reversed = True

# Sketch on XY plane
sketch20 = body.newObject("Sketcher::SketchObject", "Sketch019")
sketch20.AttachmentSupport = (doc.getObject("XY_Plane"), [""])
sketch20.MapMode = "FlatFace"
sketch20.AttachmentOffset = App.Placement(Vector(0, 0, -100), App.Rotation())
sketch20.addGeometry([
    Part.LineSegment(Vector(26.938028, -10.91019, 0), Vector(28.691891, -11.711153, 0)),
    Part.LineSegment(Vector(28.691891, -11.711153, 0), Vector(27.639892, -14.01471, 0)),
    Part.LineSegment(Vector(27.639892, -14.01471, 0), Vector(25.886028, -13.213748, 0)),
    Part.LineSegment(Vector(25.886028, -13.213748, 0), Vector(26.938028, -10.91019, 0)),
], False)
sketch20.addConstraint([
    Sketcher.Constraint("Coincident", 0, 2, 1, 1),
    Sketcher.Constraint("Coincident", 1, 2, 2, 1),
    Sketcher.Constraint("Coincident", 2, 2, 3, 1),
    Sketcher.Constraint("Coincident", 3, 2, 0, 1),
    Sketcher.Constraint("Perpendicular", 0, 1),
    Sketcher.Constraint("Perpendicular", 1, 2),
    Sketcher.Constraint("Perpendicular", 2, 3),
    Sketcher.Constraint("DistanceX", 1, 2, 0, 2, Q("1.052 mm")),
    Sketcher.Constraint("Distance", 0, Q("1.928102 mm")),
    Sketcher.Constraint("DistanceX", -1, 1, 0, 2, Q("28.691891 mm")),
    Sketcher.Constraint("DistanceY", 1, 2, -1, 1, Q("14.01471 mm")),
    Sketcher.Constraint("DistanceX", -1, 1, 2, 2, Q("25.886028 mm")),
])
pocket17 = body.newObject("PartDesign::Pocket", "Pocket016")
pocket17.Profile = sketch20
pocket17.Length = 100
pocket17.Reversed = True

# Sketch on XY plane
sketch21 = body.newObject("Sketcher::SketchObject", "Sketch020")
sketch21.AttachmentSupport = (doc.getObject("XY_Plane"), [""])
sketch21.MapMode = "FlatFace"
sketch21.AttachmentOffset = App.Placement(Vector(0, 0, -100), App.Rotation())
sketch21.addGeometry([
    Part.LineSegment(Vector(28.920604, -2.878931, 0), Vector(30.829081, -3.153329, 0)),
    Part.LineSegment(Vector(30.829081, -3.153329, 0), Vector(30.468682, -5.659959, 0)),
    Part.LineSegment(Vector(30.468682, -5.659959, 0), Vector(28.560205, -5.385561, 0)),
    Part.LineSegment(Vector(28.560205, -5.385561, 0), Vector(28.920604, -2.878931, 0)),
], False)
sketch21.addConstraint([
    Sketcher.Constraint("Coincident", 0, 2, 1, 1),
    Sketcher.Constraint("Coincident", 1, 2, 2, 1),
    Sketcher.Constraint("Coincident", 2, 2, 3, 1),
    Sketcher.Constraint("Coincident", 3, 2, 0, 1),
    Sketcher.Constraint("Perpendicular", 0, 1),
    Sketcher.Constraint("Perpendicular", 1, 2),
    Sketcher.Constraint("Perpendicular", 2, 3),
    Sketcher.Constraint("Distance", 0, Q("1.928102 mm")),
    Sketcher.Constraint("DistanceX", 1, 2, 0, 2, Q("0.360399 mm")),
    Sketcher.Constraint("DistanceX", -1, 1, 0, 2, Q("30.829081 mm")),
    Sketcher.Constraint("DistanceY", 0, 2, -1, 1, Q("3.153329 mm")),
    Sketcher.Constraint("DistanceY", 1, 2, -1, 1, Q("5.659959 mm")),
])
pocket18 = body.newObject("PartDesign::Pocket", "Pocket017")
pocket18.Profile = sketch21
pocket18.Length = 100
pocket18.Reversed = True

# Sketch on XY plane
sketch22 = body.newObject("Sketcher::SketchObject", "Sketch021")
sketch22.AttachmentSupport = (doc.getObject("XY_Plane"), [""])
sketch22.MapMode = "FlatFace"
sketch22.AttachmentOffset = App.Placement(Vector(0, 0, -100), App.Rotation())
sketch22.addGeometry([
    Part.LineSegment(Vector(28.560205, 5.385561, 0), Vector(30.468682, 5.659959, 0)),
    Part.LineSegment(Vector(30.468682, 5.659959, 0), Vector(30.829081, 3.153329, 0)),
    Part.LineSegment(Vector(30.829081, 3.153329, 0), Vector(28.920604, 2.878931, 0)),
    Part.LineSegment(Vector(28.920604, 2.878931, 0), Vector(28.560205, 5.385561, 0)),
], False)
sketch22.addConstraint([
    Sketcher.Constraint("Coincident", 0, 2, 1, 1),
    Sketcher.Constraint("Coincident", 1, 2, 2, 1),
    Sketcher.Constraint("Coincident", 2, 2, 3, 1),
    Sketcher.Constraint("Coincident", 3, 2, 0, 1),
    Sketcher.Constraint("Perpendicular", 0, 1),
    Sketcher.Constraint("Perpendicular", 1, 2),
    Sketcher.Constraint("Perpendicular", 2, 3),
    Sketcher.Constraint("Distance", 0, Q("1.928102 mm")),
    Sketcher.Constraint("DistanceX", 0, 2, 1, 2, Q("0.360399 mm")),
    Sketcher.Constraint("DistanceY", -1, 1, 0, 2, Q("5.659959 mm")),
    Sketcher.Constraint("DistanceX", -1, 1, 1, 2, Q("30.829081 mm")),
    Sketcher.Constraint("DistanceY", -1, 1, 1, 2, Q("3.153329 mm")),
])
pocket19 = body.newObject("PartDesign::Pocket", "Pocket018")
pocket19.Profile = sketch22
pocket19.Length = 100
pocket19.Reversed = True

# Sketch on XY plane
sketch23 = body.newObject("Sketcher::SketchObject", "Sketch022")
sketch23.AttachmentSupport = (doc.getObject("XY_Plane"), [""])
sketch23.MapMode = "FlatFace"
sketch23.AttachmentOffset = App.Placement(Vector(0, 0, -100), App.Rotation())
sketch23.addGeometry([
    Part.LineSegment(Vector(25.886028, 13.213748, 0), Vector(27.639892, 14.01471, 0)),
    Part.LineSegment(Vector(27.639892, 14.01471, 0), Vector(28.691891, 11.711153, 0)),
    Part.LineSegment(Vector(28.691891, 11.711153, 0), Vector(26.938028, 10.91019, 0)),
    Part.LineSegment(Vector(26.938028, 10.91019, 0), Vector(25.886028, 13.213748, 0)),
], False)
sketch23.addConstraint([
    Sketcher.Constraint("Coincident", 0, 2, 1, 1),
    Sketcher.Constraint("Coincident", 1, 2, 2, 1),
    Sketcher.Constraint("Coincident", 2, 2, 3, 1),
    Sketcher.Constraint("Coincident", 3, 2, 0, 1),
    Sketcher.Constraint("Perpendicular", 0, 1),
    Sketcher.Constraint("Perpendicular", 1, 2),
    Sketcher.Constraint("Perpendicular", 2, 3),
    Sketcher.Constraint("DistanceX", 0, 2, 1, 2, Q("1.052 mm")),
    Sketcher.Constraint("Distance", 0, Q("1.928102 mm")),
    Sketcher.Constraint("DistanceX", -1, 1, 0, 2, Q("27.639892 mm")),
    Sketcher.Constraint("DistanceY", -1, 1, 0, 2, Q("14.01471 mm")),
    Sketcher.Constraint("DistanceX", -1, 1, 2, 2, Q("26.938028 mm")),
])
pocket20 = body.newObject("PartDesign::Pocket", "Pocket019")
pocket20.Profile = sketch23
pocket20.Length = 100
pocket20.Reversed = True

# Sketch on XY plane
sketch24 = body.newObject("Sketcher::SketchObject", "Sketch023")
sketch24.AttachmentSupport = (doc.getObject("XY_Plane"), [""])
sketch24.MapMode = "FlatFace"
sketch24.AttachmentOffset = App.Placement(Vector(0, 0, -100), App.Rotation())
sketch24.addGeometry([
    Part.LineSegment(Vector(21.114719, 19.971435, 0), Vector(22.571882, 21.234074, 0)),
    Part.LineSegment(Vector(22.571882, 21.234074, 0), Vector(24.230255, 19.320209, 0)),
    Part.LineSegment(Vector(24.230255, 19.320209, 0), Vector(22.773093, 18.05757, 0)),
    Part.LineSegment(Vector(22.773093, 18.05757, 0), Vector(21.114719, 19.971435, 0)),
], False)
sketch24.addConstraint([
    Sketcher.Constraint("Coincident", 0, 2, 1, 1),
    Sketcher.Constraint("Coincident", 1, 2, 2, 1),
    Sketcher.Constraint("Coincident", 2, 2, 3, 1),
    Sketcher.Constraint("Coincident", 3, 2, 0, 1),
    Sketcher.Constraint("Perpendicular", 0, 1),
    Sketcher.Constraint("Perpendicular", 1, 2),
    Sketcher.Constraint("Perpendicular", 2, 3),
    Sketcher.Constraint("Distance", 0, Q("1.928102 mm")),
    Sketcher.Constraint("DistanceX", -1, 1, 0, 2, Q("22.571882 mm")),
    Sketcher.Constraint("DistanceY", -1, 1, 1, 2, Q("19.320209 mm")),
    Sketcher.Constraint("DistanceY", -1, 1, 2, 2, Q("18.05757 mm")),
    Sketcher.Constraint("DistanceX", 0, 2, 2, 2, Q("0.201211 mm")),
])
pocket21 = body.newObject("PartDesign::Pocket", "Pocket020")
pocket21.Profile = sketch24
pocket21.Length = 100
pocket21.Reversed = True

# Sketch on XY plane
sketch25 = body.newObject("Sketcher::SketchObject", "Sketch024")
sketch25.AttachmentSupport = (doc.getObject("XY_Plane"), [""])
sketch25.MapMode = "FlatFace"
sketch25.AttachmentOffset = App.Placement(Vector(0, 0, -100), App.Rotation())
sketch25.addGeometry([
    Part.LineSegment(Vector(14.632821, 25.111156, 0), Vector(15.675232, 26.733178, 0)),
    Part.LineSegment(Vector(15.675232, 26.733178, 0), Vector(17.805628, 25.364056, 0)),
    Part.LineSegment(Vector(17.805628, 25.364056, 0), Vector(16.763217, 23.742034, 0)),
    Part.LineSegment(Vector(16.763217, 23.742034, 0), Vector(14.632821, 25.111156, 0)),
], False)
sketch25.addConstraint([
    Sketcher.Constraint("Coincident", 0, 2, 1, 1),
    Sketcher.Constraint("Coincident", 1, 2, 2, 1),
    Sketcher.Constraint("Coincident", 2, 2, 3, 1),
    Sketcher.Constraint("Coincident", 3, 2, 0, 1),
    Sketcher.Constraint("Perpendicular", 0, 1),
    Sketcher.Constraint("Perpendicular", 1, 2),
    Sketcher.Constraint("Perpendicular", 2, 3),
    Sketcher.Constraint("Distance", 0, Q("1.928102 mm")),
    Sketcher.Constraint("DistanceY", 3, 2, 1, 2, Q("0.2529 mm")),
    Sketcher.Constraint("DistanceX", -1, 1, 0, 2, Q("15.675232 mm")),
    Sketcher.Constraint("DistanceY", -1, 1, 0, 2, Q("26.733178 mm")),
    Sketcher.Constraint("DistanceX", -1, 1, 3, 2, Q("14.632821 mm")),
])
pocket22 = body.newObject("PartDesign::Pocket", "Pocket021")
pocket22.Profile = sketch25
pocket22.Length = 100
pocket22.Reversed = True

# Sketch on XY plane
sketch26 = body.newObject("Sketcher::SketchObject", "Sketch025")
sketch26.AttachmentSupport = (doc.getObject("XY_Plane"), [""])
sketch26.MapMode = "FlatFace"
sketch26.AttachmentOffset = App.Placement(Vector(0, 0, -100), App.Rotation())
sketch26.addGeometry([
    Part.LineSegment(Vector(6.965459, 28.21652, 0), Vector(7.508668, 30.06652, 0)),
    Part.LineSegment(Vector(7.508668, 30.06652, 0), Vector(9.938494, 29.353059, 0)),
    Part.LineSegment(Vector(9.938494, 29.353059, 0), Vector(9.395285, 27.503058, 0)),
    Part.LineSegment(Vector(9.395285, 27.503058, 0), Vector(6.965459, 28.21652, 0)),
], False)
sketch26.addConstraint([
    Sketcher.Constraint("Coincident", 0, 2, 1, 1),
    Sketcher.Constraint("Coincident", 1, 2, 2, 1),
    Sketcher.Constraint("Coincident", 2, 2, 3, 1),
    Sketcher.Constraint("Coincident", 3, 2, 0, 1),
    Sketcher.Constraint("Perpendicular", 0, 1),
    Sketcher.Constraint("Perpendicular", 1, 2),
    Sketcher.Constraint("Perpendicular", 2, 3),
    Sketcher.Constraint("DistanceY", 2, 2, 1, 2, Q("1.85 mm")),
    Sketcher.Constraint("Distance", 0, Q("1.928102 mm")),
    Sketcher.Constraint("DistanceX", -1, 1, 0, 2, Q("7.508668 mm")),
    Sketcher.Constraint("DistanceY", -1, 1, 0, 2, Q("30.06652 mm")),
    Sketcher.Constraint("DistanceY", -1, 1, 1, 2, Q("29.353059 mm")),
])
pocket23 = body.newObject("PartDesign::Pocket", "Pocket022")
pocket23.Profile = sketch26
pocket23.Length = 100
pocket23.Reversed = True

# Sketch on YZ plane
sketch27 = body.newObject("Sketcher::SketchObject", "Sketch026")
sketch27.AttachmentSupport = (doc.getObject("YZ_Plane"), [""])
sketch27.MapMode = "FlatFace"
sketch27.addGeometry([
    Part.LineSegment(Vector(55.073824, -10.204388, 0), Vector(-25, -10.204388, 0)),
    Part.LineSegment(Vector(-25, -10.204388, 0), Vector(-25, -69.795612, 0)),
    Part.LineSegment(Vector(-25, -69.795612, 0), Vector(55.073824, -69.795612, 0)),
    Part.LineSegment(Vector(55.073824, -69.795612, 0), Vector(55.073824, -10.204388, 0)),
], False)
sketch27.addConstraint([
    Sketcher.Constraint("Coincident", 0, 2, 1, 1),
    Sketcher.Constraint("Coincident", 1, 2, 2, 1),
    Sketcher.Constraint("Coincident", 2, 2, 3, 1),
    Sketcher.Constraint("Coincident", 3, 2, 0, 1),
    Sketcher.Constraint("Horizontal", 0),
    Sketcher.Constraint("Vertical", 1),
    Sketcher.Constraint("Horizontal", 2),
    Sketcher.Constraint("Vertical", 3),
    Sketcher.Constraint("DistanceX", 0, 2, -1, 1, Q("25 mm")),
    Sketcher.Constraint("DistanceX", 0, 2, 0, 1, Q("80.073824 mm")),
    Sketcher.Constraint("DistanceY", 1, 2, 1, 1, Q("59.591223 mm")),
    Sketcher.Constraint("DistanceY", 0, 2, -1, 1, Q("10.204388 mm")),
])
pad4 = body.newObject("PartDesign::Pad", "Pad003")
pad4.Profile = sketch27
pad4.Length = 5

# Sketch on YZ plane
sketch28 = body.newObject("Sketcher::SketchObject", "Sketch027")
sketch28.AttachmentSupport = (doc.getObject("YZ_Plane"), [""])
sketch28.MapMode = "FlatFace"
sketch28.AttachmentOffset = App.Placement(Vector(0, 0, 5), App.Rotation())
sketch28.addGeometry(Part.Circle(Vector(0, -40, 0), Vector(0, 0, 1), 10), False)
sketch28.addConstraint([
    Sketcher.Constraint("PointOnObject", 0, 3, -2),
    Sketcher.Constraint("Diameter", 0, Q("20 mm")),
    Sketcher.Constraint("DistanceY", 0, 3, -1, 1, Q("40 mm")),
])
pad5 = body.newObject("PartDesign::Pad", "Pad004")
pad5.Profile = sketch28
pad5.Length = 5

doc.recompute()
